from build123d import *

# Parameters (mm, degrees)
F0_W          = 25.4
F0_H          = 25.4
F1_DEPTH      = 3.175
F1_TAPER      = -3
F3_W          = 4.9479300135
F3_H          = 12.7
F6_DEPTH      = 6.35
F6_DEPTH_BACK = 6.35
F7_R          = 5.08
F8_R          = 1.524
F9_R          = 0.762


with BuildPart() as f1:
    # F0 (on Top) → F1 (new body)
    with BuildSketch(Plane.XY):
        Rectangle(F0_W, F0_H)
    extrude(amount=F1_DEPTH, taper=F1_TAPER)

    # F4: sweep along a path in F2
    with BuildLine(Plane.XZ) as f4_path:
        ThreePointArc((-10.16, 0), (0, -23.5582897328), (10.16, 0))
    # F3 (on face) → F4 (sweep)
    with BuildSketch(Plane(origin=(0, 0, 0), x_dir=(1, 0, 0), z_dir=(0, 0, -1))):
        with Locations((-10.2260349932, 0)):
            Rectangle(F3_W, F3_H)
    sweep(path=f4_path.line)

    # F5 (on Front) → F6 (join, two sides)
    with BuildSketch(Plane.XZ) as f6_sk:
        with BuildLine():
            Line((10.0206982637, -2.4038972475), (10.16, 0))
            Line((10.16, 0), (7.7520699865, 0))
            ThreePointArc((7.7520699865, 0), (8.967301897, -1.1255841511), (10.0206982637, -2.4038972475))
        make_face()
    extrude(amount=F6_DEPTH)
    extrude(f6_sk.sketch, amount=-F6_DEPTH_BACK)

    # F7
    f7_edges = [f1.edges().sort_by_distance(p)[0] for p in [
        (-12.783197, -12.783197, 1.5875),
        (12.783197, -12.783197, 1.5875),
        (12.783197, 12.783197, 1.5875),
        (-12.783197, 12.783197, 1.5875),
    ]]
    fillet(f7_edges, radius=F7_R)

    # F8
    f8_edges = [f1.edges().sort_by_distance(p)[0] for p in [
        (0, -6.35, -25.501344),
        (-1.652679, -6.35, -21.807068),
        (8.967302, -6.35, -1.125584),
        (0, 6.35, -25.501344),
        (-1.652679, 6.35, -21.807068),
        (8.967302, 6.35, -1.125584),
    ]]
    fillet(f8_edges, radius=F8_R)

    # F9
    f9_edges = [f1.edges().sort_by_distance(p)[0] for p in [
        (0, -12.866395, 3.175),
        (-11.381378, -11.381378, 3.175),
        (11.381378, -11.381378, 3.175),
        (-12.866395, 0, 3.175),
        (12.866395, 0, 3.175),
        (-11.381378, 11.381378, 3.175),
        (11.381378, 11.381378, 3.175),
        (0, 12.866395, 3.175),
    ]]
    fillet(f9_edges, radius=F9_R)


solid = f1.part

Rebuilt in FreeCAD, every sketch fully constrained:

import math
import FreeCAD as App
import Part
import Sketcher
from FreeCAD import Vector
Q = App.Units.Quantity


def edges_at(feature, points):
    """Names of the edges that pass closest to the given points."""
    edges = feature.Shape.Edges
    near = lambda p: min(range(len(edges)), key=lambda i: edges[i].distToShape(Part.Vertex(*p))[0])
    return sorted({f"Edge{near(p) + 1}" for p in points})

doc = App.newDocument("Part")
body = doc.addObject("PartDesign::Body", "Body")

sketch1 = body.newObject("Sketcher::SketchObject", "Sketch")
sketch1.AttachmentSupport = (doc.getObject("XY_Plane"), [""])
sketch1.MapMode = "FlatFace"
sketch1.addGeometry([
    Part.LineSegment(Vector(-12.7, 12.7, 0), Vector(-12.7, -12.7, 0)),
    Part.LineSegment(Vector(-12.7, -12.7, 0), Vector(12.7, -12.7, 0)),
    Part.LineSegment(Vector(12.7, -12.7, 0), Vector(12.7, 12.7, 0)),
    Part.LineSegment(Vector(12.7, 12.7, 0), Vector(-12.7, 12.7, 0)),
], False)
sketch1.addConstraint([
    Sketcher.Constraint("Coincident", 0, 2, 1, 1),
    Sketcher.Constraint("Coincident", 1, 2, 2, 1),
    Sketcher.Constraint("Coincident", 2, 2, 3, 1),
    Sketcher.Constraint("Coincident", 3, 2, 0, 1),
    Sketcher.Constraint("Vertical", 0),
    Sketcher.Constraint("Horizontal", 1),
    Sketcher.Constraint("Vertical", 2),
    Sketcher.Constraint("Horizontal", 3),
    Sketcher.Constraint("Symmetric", 0, 2, 2, 2, -1, 1),
    Sketcher.Constraint("Equal", 3, 0),
    Sketcher.Constraint("DistanceX", 1, 1, 1, 2, Q("1 in")),
])
pad1 = body.newObject("PartDesign::Pad", "Pad")
pad1.Profile = sketch1
pad1.Length = Q("0.125 in")
pad1.TaperAngle = 3

sketch2 = body.newObject("Sketcher::SketchObject", "Sketch001")
sketch2.AttachmentSupport = (doc.getObject("XY_Plane"), [""])
sketch2.MapMode = "FlatFace"
sketch2.addGeometry([
    Part.LineSegment(Vector(-12.7, -6.35, 0), Vector(-12.7, 6.35, 0)),
    Part.LineSegment(Vector(-12.7, 6.35, 0), Vector(-7.75207, 6.35, 0)),
    Part.LineSegment(Vector(-7.75207, 6.35, 0), Vector(-7.75207, -6.35, 0)),
    Part.LineSegment(Vector(-7.75207, -6.35, 0), Vector(-12.7, -6.35, 0)),
], False)
sketch2.addConstraint([
    Sketcher.Constraint("Coincident", 0, 2, 1, 1),
    Sketcher.Constraint("Coincident", 1, 2, 2, 1),
    Sketcher.Constraint("Coincident", 2, 2, 3, 1),
    Sketcher.Constraint("Coincident", 3, 2, 0, 1),
    Sketcher.Constraint("Vertical", 0),
    Sketcher.Constraint("Horizontal", 1),
    Sketcher.Constraint("Vertical", 2),
    Sketcher.Constraint("Horizontal", 3),
    Sketcher.Constraint("DistanceY", 0, 1, 0, 2, Q("0.5 in")),
    Sketcher.Constraint("DistanceX", 0, 2, -1, 1, Q("0.5 in")),
    Sketcher.Constraint("DistanceY", -1, 1, 0, 2, Q("0.25 in")),
    Sketcher.Constraint("DistanceX", 1, 1, 1, 2, 4.94793),
])

sketch3 = body.newObject("Sketcher::SketchObject", "Sketch002")
sketch3.AttachmentSupport = (doc.getObject("XZ_Plane"), [""])
sketch3.MapMode = "FlatFace"
sketch3.addGeometry(Part.ArcOfCircle(Part.Circle(Vector(0, -9.58829, 0), Vector(0, 0, 1), 13.97), math.radians(136.658242), math.radians(403.341758)), False)
sketch3.addConstraint([
    Sketcher.Constraint("Symmetric", 0, 1, 0, 2, -1, 1),
    Sketcher.Constraint("PointOnObject", 0, 3, -2),
    Sketcher.Constraint("Radius", 0, Q("0.55 in")),
    Sketcher.Constraint("DistanceX", 0, 1, -1, 1, Q("0.4 in")),
])
doc.recompute()

additivepipe = body.newObject("PartDesign::AdditivePipe", "AdditivePipe")
additivepipe.Profile = sketch2
additivepipe.Spine = (sketch3, ["Edge1"])

sketch4 = body.newObject("Sketcher::SketchObject", "Sketch003")
sketch4.AttachmentSupport = (doc.getObject("XZ_Plane"), [""])
sketch4.MapMode = "FlatFace"
sketch4.addGeometry([
    Part.LineSegment(Vector(10.020698, -2.403897, 0), Vector(10.16, 0, 0)),
    Part.LineSegment(Vector(10.16, 0, 0), Vector(7.75207, 0, 0)),
    Part.ArcOfCircle(Part.Circle(Vector(0, -9.58829, 0), Vector(0, 0, 1), 12.33004), math.radians(35.638831), math.radians(51.044686)),
], False)
sketch4.addConstraint([
    Sketcher.Constraint("Coincident", 0, 2, 1, 1),
    Sketcher.Constraint("Coincident", 1, 2, 2, 2),
    Sketcher.Constraint("Coincident", 2, 1, 0, 1),
    Sketcher.Constraint("Horizontal", 1),
    Sketcher.Constraint("PointOnObject", 2, 3, -2),
    Sketcher.Constraint("PointOnObject", 0, 2, -1),
    Sketcher.Constraint("DistanceX", -1, 1, 0, 2, Q("0.4 in")),
    Sketcher.Constraint("Radius", 2, 12.33004),
    Sketcher.Constraint("DistanceX", 1, 2, 1, 1, 2.40793),
    Sketcher.Constraint("DistanceX", -1, 1, 2, 1, 10.020698),
])
pad2 = body.newObject("PartDesign::Pad", "Pad001")
pad2.Profile = sketch4
pad2.Type = "TwoLengths"
pad2.Length = Q("0.25 in")
pad2.Length2 = Q("0.25 in")
doc.recompute()

fillet = body.newObject("PartDesign::Fillet", "Fillet")
fillet.Base = (pad2, edges_at(pad2, [
    (-12.783, -12.783, 1.587),
    (12.783, -12.783, 1.587),
    (12.783, 12.783, 1.587),
    (-12.783, 12.783, 1.587),
]))
fillet.Radius = Q("0.2 in")
doc.recompute()

fillet2 = body.newObject("PartDesign::Fillet", "Fillet001")
fillet2.Base = (fillet, edges_at(fillet, [
    (0, -6.35, -25.501),
    (-1.653, -6.35, -21.807),
    (8.967, -6.35, -1.126),
    (0, 6.35, -25.501),
    (-1.653, 6.35, -21.807),
    (8.967, 6.35, -1.126),
]))
fillet2.Radius = Q("0.06 in")
doc.recompute()

fillet3 = body.newObject("PartDesign::Fillet", "Fillet002")
fillet3.Base = (fillet2, edges_at(fillet2, [
    (0, -12.866, 3.175),
    (-11.381, -11.381, 3.175),
    (11.381, -11.381, 3.175),
    (-12.866, 0, 3.175),
    (12.866, 0, 3.175),
    (-11.381, 11.381, 3.175),
    (11.381, 11.381, 3.175),
    (0, 12.866, 3.175),
]))
fillet3.Radius = Q("0.03 in")

doc.recompute()
